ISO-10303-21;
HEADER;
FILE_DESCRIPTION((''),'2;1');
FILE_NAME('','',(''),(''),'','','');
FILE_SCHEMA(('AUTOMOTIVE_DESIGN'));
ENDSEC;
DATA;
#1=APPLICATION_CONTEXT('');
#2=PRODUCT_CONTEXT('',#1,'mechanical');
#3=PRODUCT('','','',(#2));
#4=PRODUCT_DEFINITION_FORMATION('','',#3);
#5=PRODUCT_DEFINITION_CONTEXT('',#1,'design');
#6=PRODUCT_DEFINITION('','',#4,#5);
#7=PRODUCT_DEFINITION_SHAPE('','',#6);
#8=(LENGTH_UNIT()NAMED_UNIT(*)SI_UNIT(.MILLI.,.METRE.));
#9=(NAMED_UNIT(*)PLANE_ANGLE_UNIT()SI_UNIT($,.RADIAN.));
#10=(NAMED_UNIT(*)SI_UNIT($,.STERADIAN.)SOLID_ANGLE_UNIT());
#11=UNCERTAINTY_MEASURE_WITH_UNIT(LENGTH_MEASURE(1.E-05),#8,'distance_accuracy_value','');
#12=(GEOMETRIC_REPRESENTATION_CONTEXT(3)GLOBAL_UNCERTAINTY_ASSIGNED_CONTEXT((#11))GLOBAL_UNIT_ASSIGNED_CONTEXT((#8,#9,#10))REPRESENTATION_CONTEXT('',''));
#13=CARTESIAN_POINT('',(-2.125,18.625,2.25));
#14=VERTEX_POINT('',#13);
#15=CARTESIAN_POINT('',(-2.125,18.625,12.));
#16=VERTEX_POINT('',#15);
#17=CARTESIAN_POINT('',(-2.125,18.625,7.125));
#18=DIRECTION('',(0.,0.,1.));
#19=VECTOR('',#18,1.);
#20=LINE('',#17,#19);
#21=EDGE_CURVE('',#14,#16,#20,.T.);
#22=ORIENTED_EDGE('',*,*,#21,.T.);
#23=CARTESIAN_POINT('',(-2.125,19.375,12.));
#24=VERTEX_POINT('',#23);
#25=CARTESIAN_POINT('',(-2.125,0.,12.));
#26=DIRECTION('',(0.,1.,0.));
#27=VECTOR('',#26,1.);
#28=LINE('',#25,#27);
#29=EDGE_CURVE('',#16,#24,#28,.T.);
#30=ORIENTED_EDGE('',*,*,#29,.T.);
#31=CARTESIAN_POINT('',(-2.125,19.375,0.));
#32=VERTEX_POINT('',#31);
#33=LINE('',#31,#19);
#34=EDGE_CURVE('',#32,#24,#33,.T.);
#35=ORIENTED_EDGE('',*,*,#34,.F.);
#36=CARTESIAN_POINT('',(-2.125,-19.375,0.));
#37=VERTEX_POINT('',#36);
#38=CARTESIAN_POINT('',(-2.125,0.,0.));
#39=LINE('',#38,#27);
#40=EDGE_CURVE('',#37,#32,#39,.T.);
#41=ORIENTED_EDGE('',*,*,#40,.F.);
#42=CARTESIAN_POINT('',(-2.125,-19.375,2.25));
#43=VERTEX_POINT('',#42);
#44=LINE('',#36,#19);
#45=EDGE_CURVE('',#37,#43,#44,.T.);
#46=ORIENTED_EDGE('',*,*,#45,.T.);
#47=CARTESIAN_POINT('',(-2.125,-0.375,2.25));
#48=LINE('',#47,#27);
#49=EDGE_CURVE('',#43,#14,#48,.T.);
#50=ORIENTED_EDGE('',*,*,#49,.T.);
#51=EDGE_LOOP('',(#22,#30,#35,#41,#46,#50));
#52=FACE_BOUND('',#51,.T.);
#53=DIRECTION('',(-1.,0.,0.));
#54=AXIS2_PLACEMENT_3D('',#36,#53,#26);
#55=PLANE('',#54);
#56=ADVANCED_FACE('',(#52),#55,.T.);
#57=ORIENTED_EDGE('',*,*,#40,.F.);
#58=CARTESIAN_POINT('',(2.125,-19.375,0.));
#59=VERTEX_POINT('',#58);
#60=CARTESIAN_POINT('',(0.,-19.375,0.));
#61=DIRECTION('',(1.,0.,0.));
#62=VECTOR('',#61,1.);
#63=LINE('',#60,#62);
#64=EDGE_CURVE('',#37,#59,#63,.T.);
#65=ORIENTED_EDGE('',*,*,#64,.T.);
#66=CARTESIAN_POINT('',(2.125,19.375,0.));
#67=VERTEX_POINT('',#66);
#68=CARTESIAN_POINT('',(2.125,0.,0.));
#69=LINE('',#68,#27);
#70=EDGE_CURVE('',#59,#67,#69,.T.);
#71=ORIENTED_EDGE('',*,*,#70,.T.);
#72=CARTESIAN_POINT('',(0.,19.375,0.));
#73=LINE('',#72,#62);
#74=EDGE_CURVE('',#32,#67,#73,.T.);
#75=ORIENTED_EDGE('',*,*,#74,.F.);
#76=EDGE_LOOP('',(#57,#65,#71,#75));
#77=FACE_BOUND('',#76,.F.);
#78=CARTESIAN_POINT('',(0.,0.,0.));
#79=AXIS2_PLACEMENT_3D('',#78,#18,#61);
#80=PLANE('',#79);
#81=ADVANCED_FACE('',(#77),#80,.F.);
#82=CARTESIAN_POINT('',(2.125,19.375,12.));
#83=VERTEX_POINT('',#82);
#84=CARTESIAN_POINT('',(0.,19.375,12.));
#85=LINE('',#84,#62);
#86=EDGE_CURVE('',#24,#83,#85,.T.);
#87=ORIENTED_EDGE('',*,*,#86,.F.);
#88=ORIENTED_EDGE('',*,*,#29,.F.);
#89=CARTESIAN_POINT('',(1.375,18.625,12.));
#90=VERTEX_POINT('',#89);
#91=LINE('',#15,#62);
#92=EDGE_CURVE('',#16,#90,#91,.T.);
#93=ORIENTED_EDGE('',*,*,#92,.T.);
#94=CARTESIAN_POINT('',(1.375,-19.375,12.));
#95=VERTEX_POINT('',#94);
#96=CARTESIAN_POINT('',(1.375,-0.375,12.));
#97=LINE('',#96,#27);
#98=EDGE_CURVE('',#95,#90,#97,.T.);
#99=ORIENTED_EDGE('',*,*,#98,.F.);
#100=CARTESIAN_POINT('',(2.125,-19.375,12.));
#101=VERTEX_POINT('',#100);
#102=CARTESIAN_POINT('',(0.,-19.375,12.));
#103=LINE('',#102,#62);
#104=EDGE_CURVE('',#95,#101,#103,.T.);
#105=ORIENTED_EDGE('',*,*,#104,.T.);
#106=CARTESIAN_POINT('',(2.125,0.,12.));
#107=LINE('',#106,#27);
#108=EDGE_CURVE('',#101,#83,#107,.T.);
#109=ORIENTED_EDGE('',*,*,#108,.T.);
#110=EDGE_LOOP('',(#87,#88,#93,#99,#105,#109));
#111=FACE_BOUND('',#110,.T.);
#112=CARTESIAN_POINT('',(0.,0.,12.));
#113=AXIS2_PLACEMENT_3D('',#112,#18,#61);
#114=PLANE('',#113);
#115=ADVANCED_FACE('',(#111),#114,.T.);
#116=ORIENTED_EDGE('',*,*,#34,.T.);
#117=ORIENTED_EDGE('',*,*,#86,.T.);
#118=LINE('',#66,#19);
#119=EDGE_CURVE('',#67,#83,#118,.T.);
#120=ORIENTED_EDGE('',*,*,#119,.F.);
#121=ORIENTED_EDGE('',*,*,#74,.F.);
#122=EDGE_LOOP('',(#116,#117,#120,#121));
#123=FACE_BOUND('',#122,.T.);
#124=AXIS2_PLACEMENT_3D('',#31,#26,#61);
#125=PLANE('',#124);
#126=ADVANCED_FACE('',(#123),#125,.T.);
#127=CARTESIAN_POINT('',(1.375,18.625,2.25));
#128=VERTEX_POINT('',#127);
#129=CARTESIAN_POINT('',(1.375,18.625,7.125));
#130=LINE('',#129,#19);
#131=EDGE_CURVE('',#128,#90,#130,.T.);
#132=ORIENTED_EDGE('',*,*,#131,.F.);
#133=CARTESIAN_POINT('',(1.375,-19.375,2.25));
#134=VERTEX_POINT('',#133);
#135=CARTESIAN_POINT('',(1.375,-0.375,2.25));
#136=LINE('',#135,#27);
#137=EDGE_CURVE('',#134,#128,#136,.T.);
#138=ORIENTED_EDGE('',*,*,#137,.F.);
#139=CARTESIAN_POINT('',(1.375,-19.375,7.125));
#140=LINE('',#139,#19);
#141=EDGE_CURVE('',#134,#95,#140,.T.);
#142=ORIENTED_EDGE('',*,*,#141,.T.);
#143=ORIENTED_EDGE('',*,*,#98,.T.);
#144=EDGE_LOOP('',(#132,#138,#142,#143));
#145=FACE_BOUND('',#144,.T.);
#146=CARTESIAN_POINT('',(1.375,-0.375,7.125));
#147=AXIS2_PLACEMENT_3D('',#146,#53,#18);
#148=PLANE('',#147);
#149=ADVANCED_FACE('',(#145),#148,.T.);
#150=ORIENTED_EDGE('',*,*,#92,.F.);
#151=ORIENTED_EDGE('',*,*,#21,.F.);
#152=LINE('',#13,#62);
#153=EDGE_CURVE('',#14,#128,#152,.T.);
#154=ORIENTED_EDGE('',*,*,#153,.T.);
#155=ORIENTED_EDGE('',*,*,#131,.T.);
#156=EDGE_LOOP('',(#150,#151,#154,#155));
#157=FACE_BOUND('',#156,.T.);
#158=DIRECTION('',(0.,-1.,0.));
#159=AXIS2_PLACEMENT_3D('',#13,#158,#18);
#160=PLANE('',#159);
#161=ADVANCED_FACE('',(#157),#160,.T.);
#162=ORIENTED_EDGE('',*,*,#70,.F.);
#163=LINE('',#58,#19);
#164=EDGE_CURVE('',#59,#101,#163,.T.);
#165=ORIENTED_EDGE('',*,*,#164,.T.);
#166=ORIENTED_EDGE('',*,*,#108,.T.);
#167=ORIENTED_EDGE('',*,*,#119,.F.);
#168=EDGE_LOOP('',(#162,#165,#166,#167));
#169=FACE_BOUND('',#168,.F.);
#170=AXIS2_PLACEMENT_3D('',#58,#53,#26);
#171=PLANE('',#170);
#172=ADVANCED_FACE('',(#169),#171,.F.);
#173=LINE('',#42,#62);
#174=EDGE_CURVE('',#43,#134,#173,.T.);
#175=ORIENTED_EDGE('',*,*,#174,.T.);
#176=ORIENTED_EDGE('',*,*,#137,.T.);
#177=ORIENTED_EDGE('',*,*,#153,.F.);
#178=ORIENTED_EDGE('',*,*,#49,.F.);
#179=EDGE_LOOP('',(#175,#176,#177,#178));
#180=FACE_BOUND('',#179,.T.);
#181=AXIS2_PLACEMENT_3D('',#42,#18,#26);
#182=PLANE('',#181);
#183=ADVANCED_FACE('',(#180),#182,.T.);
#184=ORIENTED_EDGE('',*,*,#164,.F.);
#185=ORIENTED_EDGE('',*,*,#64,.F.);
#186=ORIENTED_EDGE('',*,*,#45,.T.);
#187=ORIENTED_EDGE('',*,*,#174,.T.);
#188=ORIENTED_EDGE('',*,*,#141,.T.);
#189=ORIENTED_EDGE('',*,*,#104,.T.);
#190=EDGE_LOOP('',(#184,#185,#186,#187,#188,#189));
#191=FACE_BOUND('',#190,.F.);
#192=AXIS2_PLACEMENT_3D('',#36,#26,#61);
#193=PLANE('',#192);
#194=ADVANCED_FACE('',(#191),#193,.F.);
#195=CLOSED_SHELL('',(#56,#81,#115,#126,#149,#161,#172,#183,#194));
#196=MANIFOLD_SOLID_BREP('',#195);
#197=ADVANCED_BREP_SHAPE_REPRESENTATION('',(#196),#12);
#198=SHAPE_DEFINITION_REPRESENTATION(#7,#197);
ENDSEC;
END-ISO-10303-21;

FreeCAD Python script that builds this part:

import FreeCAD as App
import Part
import Sketcher
from FreeCAD import Vector

doc = App.newDocument("Part")
body = doc.addObject("PartDesign::Body", "Body")

sketch1 = body.newObject("Sketcher::SketchObject", "Sketch")
sketch1.AttachmentSupport = (doc.getObject("XY_Plane"), [""])
sketch1.MapMode = "FlatFace"
sketch1.addGeometry([
    Part.LineSegment(Vector(-2.1, 19.4, 0), Vector(-2.1, -19.4, 0)),
    Part.LineSegment(Vector(-2.1, -19.4, 0), Vector(2.1, -19.4, 0)),
    Part.LineSegment(Vector(2.1, -19.4, 0), Vector(2.1, 19.4, 0)),
    Part.LineSegment(Vector(2.1, 19.4, 0), Vector(-2.1, 19.4, 0)),
], False)
sketch1.addConstraint([
    Sketcher.Constraint("Coincident", 0, 2, 1, 1),
    Sketcher.Constraint("Coincident", 1, 2, 2, 1),
    Sketcher.Constraint("Coincident", 2, 2, 3, 1),
    Sketcher.Constraint("Coincident", 3, 2, 0, 1),
    Sketcher.Constraint("Vertical", 0),
    Sketcher.Constraint("Horizontal", 1),
    Sketcher.Constraint("Vertical", 2),
    Sketcher.Constraint("Horizontal", 3),
    Sketcher.Constraint("Symmetric", 0, 2, 2, 2, -1, 1),
    Sketcher.Constraint("DistanceX", 1, 1, 1, 2, 4.25),
    Sketcher.Constraint("DistanceY", 0, 2, 0, 1, 38.75),
])
pad1 = body.newObject("PartDesign::Pad", "Pad")
pad1.Profile = sketch1
pad1.Length = 12

sketch2 = body.newObject("Sketcher::SketchObject", "Sketch001")
sketch2.AttachmentSupport = (doc.getObject("YZ_Plane"), [""])
sketch2.MapMode = "FlatFace"
sketch2.AttachmentOffset = App.Placement(Vector(0, 0, -2.125), App.Rotation())
sketch2.addGeometry([
    Part.LineSegment(Vector(19, 2, 0), Vector(-19, 2, 0)),
    Part.LineSegment(Vector(-19, 2, 0), Vector(-19, 12, 0)),
    Part.LineSegment(Vector(-19, 12, 0), Vector(19, 12, 0)),
    Part.LineSegment(Vector(19, 12, 0), Vector(19, 2, 0)),
], False)
sketch2.addConstraint([
    Sketcher.Constraint("Coincident", 0, 2, 1, 1),
    Sketcher.Constraint("Coincident", 1, 2, 2, 1),
    Sketcher.Constraint("Coincident", 2, 2, 3, 1),
    Sketcher.Constraint("Coincident", 3, 2, 0, 1),
    Sketcher.Constraint("Horizontal", 0),
    Sketcher.Constraint("Vertical", 1),
    Sketcher.Constraint("Horizontal", 2),
    Sketcher.Constraint("Vertical", 3),
    Sketcher.Constraint("DistanceX", 0, 2, 0, 1, 38.0),
    Sketcher.Constraint("DistanceY", -1, 1, 1, 2, 12.0),
    Sketcher.Constraint("DistanceY", 1, 1, 1, 2, 9.75),
    Sketcher.Constraint("DistanceX", 0, 2, -1, 1, 19.375),
])
pocket1 = body.newObject("PartDesign::Pocket", "Pocket")
pocket1.Profile = sketch2
pocket1.Length = 3.5
pocket1.Reversed = True

doc.recompute()
